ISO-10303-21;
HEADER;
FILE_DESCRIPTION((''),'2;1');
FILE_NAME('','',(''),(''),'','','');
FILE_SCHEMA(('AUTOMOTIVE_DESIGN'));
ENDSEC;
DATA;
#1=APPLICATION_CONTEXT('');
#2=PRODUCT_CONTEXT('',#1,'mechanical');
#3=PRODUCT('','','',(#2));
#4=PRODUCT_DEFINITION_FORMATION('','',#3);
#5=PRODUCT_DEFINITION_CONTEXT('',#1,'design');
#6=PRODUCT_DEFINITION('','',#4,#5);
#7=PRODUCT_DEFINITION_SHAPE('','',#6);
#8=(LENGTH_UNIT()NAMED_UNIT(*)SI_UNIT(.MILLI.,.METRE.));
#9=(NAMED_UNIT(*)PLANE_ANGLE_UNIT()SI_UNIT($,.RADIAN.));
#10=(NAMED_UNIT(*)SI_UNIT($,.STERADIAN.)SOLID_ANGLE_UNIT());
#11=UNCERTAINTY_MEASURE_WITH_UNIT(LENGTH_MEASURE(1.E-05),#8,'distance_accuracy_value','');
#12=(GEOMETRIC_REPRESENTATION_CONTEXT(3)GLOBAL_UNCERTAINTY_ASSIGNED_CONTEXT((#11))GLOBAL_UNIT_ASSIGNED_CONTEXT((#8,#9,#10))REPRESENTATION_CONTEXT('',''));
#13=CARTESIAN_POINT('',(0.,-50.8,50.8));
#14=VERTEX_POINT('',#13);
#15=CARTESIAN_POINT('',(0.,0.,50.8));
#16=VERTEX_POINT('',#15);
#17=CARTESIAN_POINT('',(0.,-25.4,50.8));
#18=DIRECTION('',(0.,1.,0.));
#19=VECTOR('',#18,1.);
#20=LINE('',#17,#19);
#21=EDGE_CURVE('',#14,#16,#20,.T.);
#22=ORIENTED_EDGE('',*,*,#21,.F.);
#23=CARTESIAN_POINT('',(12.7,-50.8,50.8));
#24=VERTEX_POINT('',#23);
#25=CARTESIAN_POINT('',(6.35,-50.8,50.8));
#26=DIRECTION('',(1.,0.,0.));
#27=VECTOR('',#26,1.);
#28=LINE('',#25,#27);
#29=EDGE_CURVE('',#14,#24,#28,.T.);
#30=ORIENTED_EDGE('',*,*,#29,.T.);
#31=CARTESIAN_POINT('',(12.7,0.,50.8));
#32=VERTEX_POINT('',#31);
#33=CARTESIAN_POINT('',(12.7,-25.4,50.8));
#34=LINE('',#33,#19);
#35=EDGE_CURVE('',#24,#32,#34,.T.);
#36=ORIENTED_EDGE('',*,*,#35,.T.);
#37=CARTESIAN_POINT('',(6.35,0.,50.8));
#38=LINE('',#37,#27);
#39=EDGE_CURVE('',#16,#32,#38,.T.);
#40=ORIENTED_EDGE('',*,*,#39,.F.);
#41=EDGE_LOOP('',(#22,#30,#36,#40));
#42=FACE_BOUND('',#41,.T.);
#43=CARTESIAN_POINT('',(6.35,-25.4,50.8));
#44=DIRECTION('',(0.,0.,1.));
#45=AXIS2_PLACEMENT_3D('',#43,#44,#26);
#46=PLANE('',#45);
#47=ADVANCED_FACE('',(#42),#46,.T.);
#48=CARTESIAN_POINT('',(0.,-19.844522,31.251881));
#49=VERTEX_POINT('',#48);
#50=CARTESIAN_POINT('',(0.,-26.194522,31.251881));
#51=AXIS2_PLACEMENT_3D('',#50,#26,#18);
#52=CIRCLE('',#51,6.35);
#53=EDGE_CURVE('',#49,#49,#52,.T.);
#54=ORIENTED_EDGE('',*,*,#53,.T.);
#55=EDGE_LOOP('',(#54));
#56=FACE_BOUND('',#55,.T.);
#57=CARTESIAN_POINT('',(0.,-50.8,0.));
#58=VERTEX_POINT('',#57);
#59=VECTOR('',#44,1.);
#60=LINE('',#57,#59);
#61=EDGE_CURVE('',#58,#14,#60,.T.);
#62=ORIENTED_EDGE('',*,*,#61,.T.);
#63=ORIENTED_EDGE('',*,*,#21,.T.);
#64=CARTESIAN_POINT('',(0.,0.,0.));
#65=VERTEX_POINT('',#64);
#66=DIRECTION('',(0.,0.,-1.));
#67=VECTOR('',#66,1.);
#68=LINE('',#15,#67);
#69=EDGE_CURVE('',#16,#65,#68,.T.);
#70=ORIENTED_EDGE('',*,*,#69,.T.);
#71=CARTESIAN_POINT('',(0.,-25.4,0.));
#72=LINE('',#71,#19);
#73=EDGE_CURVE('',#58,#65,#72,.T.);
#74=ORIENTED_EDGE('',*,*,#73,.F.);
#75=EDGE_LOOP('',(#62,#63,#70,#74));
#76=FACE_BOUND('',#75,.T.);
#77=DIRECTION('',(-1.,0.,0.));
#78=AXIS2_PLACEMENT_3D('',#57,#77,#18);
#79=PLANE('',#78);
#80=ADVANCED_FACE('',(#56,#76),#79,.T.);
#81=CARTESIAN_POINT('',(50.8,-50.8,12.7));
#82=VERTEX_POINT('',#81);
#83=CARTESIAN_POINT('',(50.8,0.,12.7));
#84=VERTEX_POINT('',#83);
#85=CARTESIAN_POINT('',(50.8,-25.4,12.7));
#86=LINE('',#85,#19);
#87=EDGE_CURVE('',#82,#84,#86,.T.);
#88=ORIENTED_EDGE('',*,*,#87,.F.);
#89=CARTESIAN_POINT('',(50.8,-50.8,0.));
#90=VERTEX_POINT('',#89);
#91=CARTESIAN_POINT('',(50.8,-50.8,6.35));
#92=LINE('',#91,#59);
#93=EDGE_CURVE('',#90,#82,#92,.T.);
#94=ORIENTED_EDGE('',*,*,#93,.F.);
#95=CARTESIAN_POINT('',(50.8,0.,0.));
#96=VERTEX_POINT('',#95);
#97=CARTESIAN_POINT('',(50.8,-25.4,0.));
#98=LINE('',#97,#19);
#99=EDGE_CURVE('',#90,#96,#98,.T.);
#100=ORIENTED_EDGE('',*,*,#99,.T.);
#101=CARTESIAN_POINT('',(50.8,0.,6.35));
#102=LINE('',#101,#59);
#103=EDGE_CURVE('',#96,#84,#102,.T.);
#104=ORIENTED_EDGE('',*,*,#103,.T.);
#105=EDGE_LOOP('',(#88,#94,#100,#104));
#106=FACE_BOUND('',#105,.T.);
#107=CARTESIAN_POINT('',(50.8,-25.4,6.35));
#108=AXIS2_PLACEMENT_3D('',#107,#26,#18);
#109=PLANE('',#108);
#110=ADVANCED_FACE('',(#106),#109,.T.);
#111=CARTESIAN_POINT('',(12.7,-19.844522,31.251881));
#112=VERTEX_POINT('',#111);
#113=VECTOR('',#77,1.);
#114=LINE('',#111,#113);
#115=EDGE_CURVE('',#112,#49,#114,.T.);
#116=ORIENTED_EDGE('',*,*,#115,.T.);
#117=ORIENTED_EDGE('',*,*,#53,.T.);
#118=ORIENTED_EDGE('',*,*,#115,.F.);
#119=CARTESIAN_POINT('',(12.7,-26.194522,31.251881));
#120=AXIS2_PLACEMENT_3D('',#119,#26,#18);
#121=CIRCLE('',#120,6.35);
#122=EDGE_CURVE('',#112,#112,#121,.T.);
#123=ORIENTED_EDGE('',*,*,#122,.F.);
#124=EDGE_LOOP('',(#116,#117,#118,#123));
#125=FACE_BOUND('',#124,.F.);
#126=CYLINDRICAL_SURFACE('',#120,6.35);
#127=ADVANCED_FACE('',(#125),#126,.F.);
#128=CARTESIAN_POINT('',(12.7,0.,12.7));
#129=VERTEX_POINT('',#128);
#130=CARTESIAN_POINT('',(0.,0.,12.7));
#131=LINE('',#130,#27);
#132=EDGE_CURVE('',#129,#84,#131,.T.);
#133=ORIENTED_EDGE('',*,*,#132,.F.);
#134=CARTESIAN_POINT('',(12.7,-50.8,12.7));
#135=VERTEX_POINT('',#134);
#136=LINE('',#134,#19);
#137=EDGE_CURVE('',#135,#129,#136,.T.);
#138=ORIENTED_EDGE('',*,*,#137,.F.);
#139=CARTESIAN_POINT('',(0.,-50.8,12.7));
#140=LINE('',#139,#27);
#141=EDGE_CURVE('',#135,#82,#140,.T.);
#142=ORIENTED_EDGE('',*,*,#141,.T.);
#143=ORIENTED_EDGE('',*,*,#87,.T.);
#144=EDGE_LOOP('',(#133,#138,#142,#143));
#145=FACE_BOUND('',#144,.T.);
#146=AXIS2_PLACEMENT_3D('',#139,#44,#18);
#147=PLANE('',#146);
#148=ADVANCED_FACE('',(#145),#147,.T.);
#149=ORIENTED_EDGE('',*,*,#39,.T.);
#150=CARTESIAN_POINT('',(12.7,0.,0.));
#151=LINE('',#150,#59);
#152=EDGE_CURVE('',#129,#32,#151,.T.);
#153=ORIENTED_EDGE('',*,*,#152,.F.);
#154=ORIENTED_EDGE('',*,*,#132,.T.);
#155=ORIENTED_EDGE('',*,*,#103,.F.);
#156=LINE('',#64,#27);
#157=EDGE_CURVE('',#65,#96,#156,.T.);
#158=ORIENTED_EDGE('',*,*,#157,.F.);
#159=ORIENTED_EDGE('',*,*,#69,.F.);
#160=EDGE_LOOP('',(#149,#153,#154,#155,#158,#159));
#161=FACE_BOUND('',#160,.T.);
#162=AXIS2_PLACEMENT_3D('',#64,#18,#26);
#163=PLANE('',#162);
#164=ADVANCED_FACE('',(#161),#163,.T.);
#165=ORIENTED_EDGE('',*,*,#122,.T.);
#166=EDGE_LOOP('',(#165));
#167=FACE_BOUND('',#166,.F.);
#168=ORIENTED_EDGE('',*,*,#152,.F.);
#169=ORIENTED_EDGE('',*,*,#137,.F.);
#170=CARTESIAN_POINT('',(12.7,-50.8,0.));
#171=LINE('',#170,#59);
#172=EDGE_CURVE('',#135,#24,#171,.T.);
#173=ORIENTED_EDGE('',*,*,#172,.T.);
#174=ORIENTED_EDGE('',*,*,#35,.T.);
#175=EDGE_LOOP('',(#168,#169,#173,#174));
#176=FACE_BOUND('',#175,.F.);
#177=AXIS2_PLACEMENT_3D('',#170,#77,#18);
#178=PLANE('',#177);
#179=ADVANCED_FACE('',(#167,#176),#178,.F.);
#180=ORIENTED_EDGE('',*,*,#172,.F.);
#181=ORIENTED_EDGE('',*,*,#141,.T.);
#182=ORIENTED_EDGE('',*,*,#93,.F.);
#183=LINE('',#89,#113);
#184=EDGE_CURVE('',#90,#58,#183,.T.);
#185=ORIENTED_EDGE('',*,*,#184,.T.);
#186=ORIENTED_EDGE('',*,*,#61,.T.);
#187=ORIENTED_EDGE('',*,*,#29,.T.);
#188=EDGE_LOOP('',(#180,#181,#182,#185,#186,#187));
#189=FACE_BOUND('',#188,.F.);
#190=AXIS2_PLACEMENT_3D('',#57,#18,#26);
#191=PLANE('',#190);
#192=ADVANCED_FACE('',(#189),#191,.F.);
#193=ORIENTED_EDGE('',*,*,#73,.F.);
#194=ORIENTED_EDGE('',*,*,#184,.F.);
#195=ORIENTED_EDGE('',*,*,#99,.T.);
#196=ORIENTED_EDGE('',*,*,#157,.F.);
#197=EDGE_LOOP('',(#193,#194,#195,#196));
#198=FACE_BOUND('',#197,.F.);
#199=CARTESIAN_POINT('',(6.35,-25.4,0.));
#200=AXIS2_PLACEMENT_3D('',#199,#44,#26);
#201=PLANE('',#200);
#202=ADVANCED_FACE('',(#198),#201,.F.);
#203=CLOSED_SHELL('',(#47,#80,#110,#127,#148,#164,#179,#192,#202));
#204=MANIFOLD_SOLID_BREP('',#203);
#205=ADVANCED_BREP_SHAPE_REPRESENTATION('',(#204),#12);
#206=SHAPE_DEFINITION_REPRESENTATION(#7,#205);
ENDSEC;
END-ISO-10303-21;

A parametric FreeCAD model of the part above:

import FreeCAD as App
import Part
import Sketcher

V = App.Vector
Q = App.Units.Quantity

doc = App.newDocument("Part")
params = doc.addObject("Spreadsheet::Sheet", "Params")
for row, (alias, value) in enumerate([
    ("sketch1_height", "2 in"),
    ("sketch1_width", "0.5 in"),
    ("pad1_length", "2 in"),
    ("sketch2_width", "2 in"),
    ("sketch2_height", "0.5 in"),
    ("pad2_length", "2 in"),
    ("sketch3_diameter", "0.5 in"),
], start=1):
    params.set(f"A{row}", alias)
    params.set(f"B{row}", "=" + value)
    params.setAlias(f"B{row}", alias)

body = doc.addObject("PartDesign::Body", "Body")

# Sketch on XY plane
sketch1 = body.newObject("Sketcher::SketchObject", "Sketch")
sketch1.AttachmentSupport = (doc.getObject("XY_Plane"), [""])
sketch1.MapMode = "FlatFace"
sketch1.addGeometry([
    Part.LineSegment(V(0, 0, 0), V(0, -51, 0)),
    Part.LineSegment(V(0, -51, 0), V(13, -51, 0)),
    Part.LineSegment(V(13, -51, 0), V(13, 0, 0)),
    Part.LineSegment(V(13, 0, 0), V(0, 0, 0)),
], False)
sketch1.addConstraint([
    Sketcher.Constraint("Coincident", 0, 2, 1, 1),
    Sketcher.Constraint("Coincident", 1, 2, 2, 1),
    Sketcher.Constraint("Coincident", 2, 2, 3, 1),
    Sketcher.Constraint("Coincident", 3, 2, 0, 1),
    Sketcher.Constraint("Vertical", 0),
    Sketcher.Constraint("Horizontal", 1),
    Sketcher.Constraint("Vertical", 2),
    Sketcher.Constraint("Horizontal", 3),
    Sketcher.Constraint("Coincident", 3, 2, -1, 1),
    Sketcher.Constraint("DistanceY", 0, 2, 0, 1, Q("2 in")),
    Sketcher.Constraint("DistanceX", 1, 1, 1, 2, Q("0.5 in")),
])
sketch1.setExpression("Constraints[9]", "Params.sketch1_height")
sketch1.setExpression("Constraints[10]", "Params.sketch1_width")
pad1 = body.newObject("PartDesign::Pad", "Pad")
pad1.Profile = sketch1
pad1.setExpression("Length", "Params.pad1_length")

# Sketch on YZ plane
sketch2 = body.newObject("Sketcher::SketchObject", "Sketch001")
sketch2.AttachmentSupport = (doc.getObject("YZ_Plane"), [""])
sketch2.MapMode = "FlatFace"
sketch2.addGeometry([
    Part.LineSegment(V(-51, 13, 0), V(-51, 0, 0)),
    Part.LineSegment(V(-51, 0, 0), V(0, 0, 0)),
    Part.LineSegment(V(0, 0, 0), V(0, 13, 0)),
    Part.LineSegment(V(0, 13, 0), V(-51, 13, 0)),
], False)
sketch2.addConstraint([
    Sketcher.Constraint("Coincident", 0, 2, 1, 1),
    Sketcher.Constraint("Coincident", 1, 2, 2, 1),
    Sketcher.Constraint("Coincident", 2, 2, 3, 1),
    Sketcher.Constraint("Coincident", 3, 2, 0, 1),
    Sketcher.Constraint("Vertical", 0),
    Sketcher.Constraint("Horizontal", 1),
    Sketcher.Constraint("Vertical", 2),
    Sketcher.Constraint("Horizontal", 3),
    Sketcher.Constraint("Coincident", 1, 2, -1, 1),
    Sketcher.Constraint("DistanceX", 1, 1, 1, 2, Q("2 in")),
    Sketcher.Constraint("DistanceY", 0, 2, 0, 1, Q("0.5 in")),
])
sketch2.setExpression("Constraints[9]", "Params.sketch2_width")
sketch2.setExpression("Constraints[10]", "Params.sketch2_height")
pad2 = body.newObject("PartDesign::Pad", "Pad001")
pad2.Profile = sketch2
pad2.setExpression("Length", "Params.pad2_length")

# Sketch on YZ plane
sketch3 = body.newObject("Sketcher::SketchObject", "Sketch002")
sketch3.AttachmentSupport = (doc.getObject("YZ_Plane"), [""])
sketch3.MapMode = "FlatFace"
sketch3.AttachmentOffset = App.Placement(V(0, 0, 0.5 * 25.4), App.Rotation())
sketch3.addGeometry(Part.Circle(V(-26, 31, 0), V(0, 0, 1), 6), False)
sketch3.addConstraint([
    Sketcher.Constraint("Diameter", 0, Q("0.5 in")),
    Sketcher.Constraint("DistanceX", 0, 3, -1, 1, 26.194522),
    Sketcher.Constraint("DistanceY", -1, 1, 0, 3, 31.251881),
])
sketch3.setExpression("Constraints[0]", "Params.sketch3_diameter")
pocket1 = body.newObject("PartDesign::Pocket", "Pocket")
pocket1.Profile = sketch3
pocket1.Type = "ThroughAll"

doc.recompute()
